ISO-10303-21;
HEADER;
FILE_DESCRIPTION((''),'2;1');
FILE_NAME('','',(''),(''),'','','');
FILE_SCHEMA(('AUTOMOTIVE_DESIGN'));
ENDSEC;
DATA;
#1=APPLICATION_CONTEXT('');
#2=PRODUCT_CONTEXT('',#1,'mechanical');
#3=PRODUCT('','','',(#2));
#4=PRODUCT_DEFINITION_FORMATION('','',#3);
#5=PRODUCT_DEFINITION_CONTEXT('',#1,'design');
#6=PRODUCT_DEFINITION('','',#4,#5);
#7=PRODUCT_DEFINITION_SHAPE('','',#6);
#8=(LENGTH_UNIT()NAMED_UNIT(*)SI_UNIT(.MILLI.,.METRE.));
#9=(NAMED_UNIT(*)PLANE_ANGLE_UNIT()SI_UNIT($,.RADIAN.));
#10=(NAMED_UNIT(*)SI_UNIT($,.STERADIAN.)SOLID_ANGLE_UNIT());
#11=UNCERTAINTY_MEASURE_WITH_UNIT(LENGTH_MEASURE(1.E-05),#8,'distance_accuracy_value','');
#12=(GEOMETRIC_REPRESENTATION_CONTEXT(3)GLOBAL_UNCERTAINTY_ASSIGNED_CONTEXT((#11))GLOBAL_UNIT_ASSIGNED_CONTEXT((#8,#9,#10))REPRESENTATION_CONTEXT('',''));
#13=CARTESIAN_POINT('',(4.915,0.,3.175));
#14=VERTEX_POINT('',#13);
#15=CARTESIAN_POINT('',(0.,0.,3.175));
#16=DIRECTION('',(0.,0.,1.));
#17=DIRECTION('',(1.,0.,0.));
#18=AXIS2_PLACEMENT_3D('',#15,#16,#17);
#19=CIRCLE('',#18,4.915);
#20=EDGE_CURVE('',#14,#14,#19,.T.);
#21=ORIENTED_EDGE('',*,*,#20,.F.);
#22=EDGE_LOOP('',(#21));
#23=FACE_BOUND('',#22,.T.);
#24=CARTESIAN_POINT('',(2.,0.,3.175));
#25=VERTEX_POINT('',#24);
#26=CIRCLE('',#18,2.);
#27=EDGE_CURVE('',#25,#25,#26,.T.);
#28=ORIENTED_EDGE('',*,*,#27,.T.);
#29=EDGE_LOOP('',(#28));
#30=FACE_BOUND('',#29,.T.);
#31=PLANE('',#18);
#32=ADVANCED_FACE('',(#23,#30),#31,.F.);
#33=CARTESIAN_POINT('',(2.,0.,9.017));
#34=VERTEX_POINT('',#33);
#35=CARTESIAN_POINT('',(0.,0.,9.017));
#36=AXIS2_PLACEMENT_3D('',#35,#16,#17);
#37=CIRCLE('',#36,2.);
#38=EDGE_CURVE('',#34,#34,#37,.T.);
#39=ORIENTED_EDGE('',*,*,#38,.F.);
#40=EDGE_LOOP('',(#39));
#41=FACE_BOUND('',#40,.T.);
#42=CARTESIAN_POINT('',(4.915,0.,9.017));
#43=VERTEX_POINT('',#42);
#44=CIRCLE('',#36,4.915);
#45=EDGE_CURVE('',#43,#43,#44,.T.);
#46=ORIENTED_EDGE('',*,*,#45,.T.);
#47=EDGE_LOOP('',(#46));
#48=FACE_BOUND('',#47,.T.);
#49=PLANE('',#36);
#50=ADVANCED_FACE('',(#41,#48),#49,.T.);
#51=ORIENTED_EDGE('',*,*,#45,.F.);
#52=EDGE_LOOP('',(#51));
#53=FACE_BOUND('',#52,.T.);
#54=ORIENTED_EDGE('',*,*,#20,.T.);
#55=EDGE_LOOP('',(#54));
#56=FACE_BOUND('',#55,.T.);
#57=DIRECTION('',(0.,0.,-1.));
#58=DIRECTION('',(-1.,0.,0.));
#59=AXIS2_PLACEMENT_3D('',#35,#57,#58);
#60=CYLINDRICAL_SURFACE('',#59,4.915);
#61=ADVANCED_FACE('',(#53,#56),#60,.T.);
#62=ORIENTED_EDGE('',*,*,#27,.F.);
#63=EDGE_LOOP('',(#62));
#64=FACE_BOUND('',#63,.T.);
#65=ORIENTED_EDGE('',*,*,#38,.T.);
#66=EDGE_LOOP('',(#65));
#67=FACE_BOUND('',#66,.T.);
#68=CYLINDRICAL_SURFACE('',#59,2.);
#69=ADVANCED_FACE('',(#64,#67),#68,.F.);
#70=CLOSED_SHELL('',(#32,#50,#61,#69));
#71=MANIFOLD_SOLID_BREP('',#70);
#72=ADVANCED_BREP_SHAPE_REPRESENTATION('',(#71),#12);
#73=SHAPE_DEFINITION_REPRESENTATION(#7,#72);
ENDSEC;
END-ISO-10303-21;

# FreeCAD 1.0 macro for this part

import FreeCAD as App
import Part
import Sketcher

V = App.Vector
Q = App.Units.Quantity

doc = App.newDocument("Part")
body = doc.addObject("PartDesign::Body", "Body")

sketch1 = doc.addObject("Sketcher::SketchObject", "Sketch")
body.addObject(sketch1)
sketch1.AttachmentSupport = (doc.XY_Plane, [""])
sketch1.MapMode = "FlatFace"
sketch1.AttachmentOffset = App.Placement(V(0, 0, 3.175), App.Rotation())
sketch1.addGeometry(Part.Circle(V(0, 0, 0), V(0, 0, 1), 4.9), False)
sketch1.addGeometry(Part.Circle(V(0, 0, 0), V(0, 0, 1), 2), False)
sketch1.addConstraint(Sketcher.Constraint("Coincident", 0, 3, -1, 1))
sketch1.addConstraint(Sketcher.Constraint("Coincident", 1, 3, -1, 1))
sketch1.addConstraint(Sketcher.Constraint("Diameter", 1, Q("4 mm")))
sketch1.addConstraint(Sketcher.Constraint("Diameter", 0, Q("9.83 mm")))
pad1 = doc.addObject("PartDesign::Pad", "Pad")
body.addObject(pad1)
pad1.Profile = sketch1
pad1.Length = 5.842

doc.recompute()
